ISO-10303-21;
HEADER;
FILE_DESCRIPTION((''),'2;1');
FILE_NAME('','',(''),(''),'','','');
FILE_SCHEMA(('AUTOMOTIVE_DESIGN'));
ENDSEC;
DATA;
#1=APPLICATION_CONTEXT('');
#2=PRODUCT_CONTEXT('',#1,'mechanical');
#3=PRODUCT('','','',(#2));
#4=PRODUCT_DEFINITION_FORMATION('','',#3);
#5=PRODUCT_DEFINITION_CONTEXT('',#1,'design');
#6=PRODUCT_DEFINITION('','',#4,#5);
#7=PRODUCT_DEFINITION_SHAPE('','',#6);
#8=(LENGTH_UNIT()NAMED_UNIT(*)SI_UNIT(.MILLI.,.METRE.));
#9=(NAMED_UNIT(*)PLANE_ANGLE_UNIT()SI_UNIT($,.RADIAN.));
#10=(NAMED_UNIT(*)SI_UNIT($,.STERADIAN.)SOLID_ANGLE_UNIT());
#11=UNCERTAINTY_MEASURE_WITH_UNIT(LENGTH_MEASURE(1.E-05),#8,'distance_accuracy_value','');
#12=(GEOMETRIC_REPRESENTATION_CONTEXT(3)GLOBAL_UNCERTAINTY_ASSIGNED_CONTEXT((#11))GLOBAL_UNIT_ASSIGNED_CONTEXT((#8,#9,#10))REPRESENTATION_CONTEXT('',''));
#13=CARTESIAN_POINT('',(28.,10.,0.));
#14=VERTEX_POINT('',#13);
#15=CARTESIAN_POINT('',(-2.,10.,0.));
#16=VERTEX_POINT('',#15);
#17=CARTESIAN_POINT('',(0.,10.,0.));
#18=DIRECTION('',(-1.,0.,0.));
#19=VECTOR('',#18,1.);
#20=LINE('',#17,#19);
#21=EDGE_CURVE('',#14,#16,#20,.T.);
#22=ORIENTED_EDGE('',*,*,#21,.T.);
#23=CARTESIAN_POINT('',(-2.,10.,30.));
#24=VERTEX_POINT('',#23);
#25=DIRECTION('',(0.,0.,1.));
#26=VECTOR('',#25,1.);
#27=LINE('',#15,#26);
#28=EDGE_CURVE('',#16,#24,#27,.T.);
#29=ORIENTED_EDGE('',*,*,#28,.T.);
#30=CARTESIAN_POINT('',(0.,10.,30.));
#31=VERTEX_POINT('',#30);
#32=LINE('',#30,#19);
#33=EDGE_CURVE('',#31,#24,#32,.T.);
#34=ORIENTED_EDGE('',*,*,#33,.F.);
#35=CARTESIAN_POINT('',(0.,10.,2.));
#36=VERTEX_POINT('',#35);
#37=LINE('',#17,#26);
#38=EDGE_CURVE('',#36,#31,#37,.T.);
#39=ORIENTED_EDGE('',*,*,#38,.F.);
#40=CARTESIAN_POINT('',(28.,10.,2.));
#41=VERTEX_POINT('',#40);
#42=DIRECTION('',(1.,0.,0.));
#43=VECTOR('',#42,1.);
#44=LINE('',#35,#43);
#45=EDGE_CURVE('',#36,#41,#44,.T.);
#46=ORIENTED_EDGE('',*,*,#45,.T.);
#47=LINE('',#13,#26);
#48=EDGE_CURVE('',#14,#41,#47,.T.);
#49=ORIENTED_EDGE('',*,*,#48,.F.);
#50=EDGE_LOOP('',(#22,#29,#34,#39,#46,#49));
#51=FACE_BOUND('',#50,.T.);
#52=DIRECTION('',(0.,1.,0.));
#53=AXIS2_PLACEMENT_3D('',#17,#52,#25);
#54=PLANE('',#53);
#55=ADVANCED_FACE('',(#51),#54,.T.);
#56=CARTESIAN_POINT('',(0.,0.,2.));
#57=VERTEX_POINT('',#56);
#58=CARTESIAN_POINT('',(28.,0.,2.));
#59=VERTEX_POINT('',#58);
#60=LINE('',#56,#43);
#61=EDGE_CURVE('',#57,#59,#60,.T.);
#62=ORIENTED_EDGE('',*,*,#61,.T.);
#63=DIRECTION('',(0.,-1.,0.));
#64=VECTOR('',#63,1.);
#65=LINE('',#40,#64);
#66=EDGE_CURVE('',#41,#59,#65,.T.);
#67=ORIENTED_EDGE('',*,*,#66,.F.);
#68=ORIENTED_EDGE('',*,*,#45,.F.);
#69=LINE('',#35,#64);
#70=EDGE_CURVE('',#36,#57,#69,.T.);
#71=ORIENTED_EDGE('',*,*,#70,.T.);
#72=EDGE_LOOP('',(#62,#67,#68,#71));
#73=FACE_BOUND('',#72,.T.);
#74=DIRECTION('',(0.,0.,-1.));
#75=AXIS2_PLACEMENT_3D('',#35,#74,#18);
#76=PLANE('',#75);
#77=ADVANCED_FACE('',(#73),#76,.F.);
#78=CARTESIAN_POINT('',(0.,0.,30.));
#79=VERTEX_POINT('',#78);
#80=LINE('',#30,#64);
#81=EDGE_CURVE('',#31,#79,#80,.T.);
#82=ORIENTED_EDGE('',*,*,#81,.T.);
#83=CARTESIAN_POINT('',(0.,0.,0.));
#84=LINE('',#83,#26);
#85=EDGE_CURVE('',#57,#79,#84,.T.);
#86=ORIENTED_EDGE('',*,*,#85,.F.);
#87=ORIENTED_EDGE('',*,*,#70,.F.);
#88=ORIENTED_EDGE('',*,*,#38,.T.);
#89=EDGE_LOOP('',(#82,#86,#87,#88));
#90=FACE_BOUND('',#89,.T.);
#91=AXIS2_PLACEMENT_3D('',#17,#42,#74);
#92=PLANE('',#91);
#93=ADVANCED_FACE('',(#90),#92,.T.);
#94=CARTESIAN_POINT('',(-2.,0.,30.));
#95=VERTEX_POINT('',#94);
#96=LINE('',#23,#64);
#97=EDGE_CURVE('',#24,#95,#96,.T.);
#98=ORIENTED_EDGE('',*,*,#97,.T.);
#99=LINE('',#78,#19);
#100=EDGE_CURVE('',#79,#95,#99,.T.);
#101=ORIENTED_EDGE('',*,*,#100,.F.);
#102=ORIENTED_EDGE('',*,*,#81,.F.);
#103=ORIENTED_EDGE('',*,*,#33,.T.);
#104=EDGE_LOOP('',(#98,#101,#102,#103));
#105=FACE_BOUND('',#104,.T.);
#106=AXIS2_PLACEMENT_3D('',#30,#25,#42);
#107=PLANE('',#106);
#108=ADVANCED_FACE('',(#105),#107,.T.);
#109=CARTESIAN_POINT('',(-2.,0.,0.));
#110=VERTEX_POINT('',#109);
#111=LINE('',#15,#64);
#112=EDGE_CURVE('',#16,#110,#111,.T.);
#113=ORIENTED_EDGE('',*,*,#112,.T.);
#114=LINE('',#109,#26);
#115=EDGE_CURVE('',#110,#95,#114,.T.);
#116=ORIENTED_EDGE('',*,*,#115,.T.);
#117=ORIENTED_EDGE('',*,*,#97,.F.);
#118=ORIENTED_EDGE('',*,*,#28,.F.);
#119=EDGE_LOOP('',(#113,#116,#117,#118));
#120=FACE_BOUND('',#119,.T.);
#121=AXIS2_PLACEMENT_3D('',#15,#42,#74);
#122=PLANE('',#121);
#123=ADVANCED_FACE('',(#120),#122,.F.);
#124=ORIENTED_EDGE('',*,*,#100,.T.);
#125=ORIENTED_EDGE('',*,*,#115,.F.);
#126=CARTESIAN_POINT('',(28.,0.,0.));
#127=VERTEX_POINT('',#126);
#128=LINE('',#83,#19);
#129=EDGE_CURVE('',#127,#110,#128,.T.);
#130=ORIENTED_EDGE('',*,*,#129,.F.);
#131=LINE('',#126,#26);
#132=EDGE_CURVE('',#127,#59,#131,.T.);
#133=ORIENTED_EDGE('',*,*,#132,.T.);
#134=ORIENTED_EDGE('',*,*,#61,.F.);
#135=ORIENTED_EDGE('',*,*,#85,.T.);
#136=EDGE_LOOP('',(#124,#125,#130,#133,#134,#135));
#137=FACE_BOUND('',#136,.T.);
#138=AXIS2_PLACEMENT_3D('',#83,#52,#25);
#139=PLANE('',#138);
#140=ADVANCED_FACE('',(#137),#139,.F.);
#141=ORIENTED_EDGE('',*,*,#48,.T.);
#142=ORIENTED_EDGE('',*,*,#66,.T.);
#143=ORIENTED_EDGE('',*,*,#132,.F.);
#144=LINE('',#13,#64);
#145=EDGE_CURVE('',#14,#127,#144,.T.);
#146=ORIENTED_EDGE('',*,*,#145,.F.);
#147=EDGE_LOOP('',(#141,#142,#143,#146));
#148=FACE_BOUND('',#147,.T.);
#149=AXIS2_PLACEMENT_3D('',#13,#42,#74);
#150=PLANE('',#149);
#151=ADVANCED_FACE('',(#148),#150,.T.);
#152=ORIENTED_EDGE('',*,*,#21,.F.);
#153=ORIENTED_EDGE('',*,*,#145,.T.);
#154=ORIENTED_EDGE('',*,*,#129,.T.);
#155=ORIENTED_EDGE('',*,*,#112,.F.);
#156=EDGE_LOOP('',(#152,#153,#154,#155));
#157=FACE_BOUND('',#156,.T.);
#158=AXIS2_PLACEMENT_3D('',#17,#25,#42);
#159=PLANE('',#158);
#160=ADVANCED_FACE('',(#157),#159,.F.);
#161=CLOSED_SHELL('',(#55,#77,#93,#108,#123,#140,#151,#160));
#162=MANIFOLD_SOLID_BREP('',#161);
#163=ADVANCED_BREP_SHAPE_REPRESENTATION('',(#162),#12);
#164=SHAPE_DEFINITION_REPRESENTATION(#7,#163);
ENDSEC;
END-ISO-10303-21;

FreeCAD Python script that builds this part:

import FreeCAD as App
import Part
import Sketcher

V = App.Vector
Q = App.Units.Quantity


def add_polygon(sketch, points):
    """Adds a closed chain of lines whose ends are joined by coincident constraints."""
    first, n = sketch.GeometryCount, len(points)
    for a, b in zip(points, points[1:] + points[:1]):
        sketch.addGeometry(Part.LineSegment(App.Vector(*a, 0), App.Vector(*b, 0)), False)
    for i in range(n):
        sketch.addConstraint(Sketcher.Constraint("Coincident", first + i, 2, first + (i + 1) % n, 1))

doc = App.newDocument("Part")
params = doc.addObject("Spreadsheet::Sheet", "Params")
for row, (alias, value) in enumerate([
    ("sketch1_width", "2 mm"),
    ("sketch1_width2", "28 mm"),
    ("pad1_length", "10 mm"),
], start=1):
    params.set(f"A{row}", alias)
    params.set(f"B{row}", "=" + value)
    params.setAlias(f"B{row}", alias)

body = doc.addObject("PartDesign::Body", "Body")

# Sketch on XZ plane
sketch1 = body.newObject("Sketcher::SketchObject", "Sketch")
sketch1.AttachmentSupport = (doc.getObject("XZ_Plane"), [""])
sketch1.MapMode = "FlatFace"
add_polygon(sketch1, [(-2, 0), (-2, 30), (0, 30), (0, 2), (28, 2), (28, 0)])  # lines 0-5
sketch1.addConstraint(Sketcher.Constraint("Vertical", 0))
sketch1.addConstraint(Sketcher.Constraint("Horizontal", 1))
sketch1.addConstraint(Sketcher.Constraint("Vertical", 2))
sketch1.addConstraint(Sketcher.Constraint("Horizontal", 3))
sketch1.addConstraint(Sketcher.Constraint("Vertical", 4))
sketch1.addConstraint(Sketcher.Constraint("Horizontal", 5))
sketch1.addConstraint(Sketcher.Constraint("PointOnObject", 1, 2, -2))
sketch1.addConstraint(Sketcher.Constraint("PointOnObject", 4, 2, -1))
sketch1.addConstraint(Sketcher.Constraint("Equal", 5, 0))
sketch1.addConstraint(Sketcher.Constraint("Equal", 3, 2))
sketch1.addConstraint(Sketcher.Constraint("DistanceX", 1, 1, 1, 2, Q("2 mm")))
sketch1.addConstraint(Sketcher.Constraint("DistanceX", 3, 1, 3, 2, Q("28 mm")))
sketch1.setExpression("Constraints[16]", "Params.sketch1_width")
sketch1.setExpression("Constraints[17]", "Params.sketch1_width2")
pad1 = body.newObject("PartDesign::Pad", "Pad")
pad1.Profile = sketch1
pad1.setExpression("Length", "Params.pad1_length")
pad1.Reversed = True

doc.recompute()
